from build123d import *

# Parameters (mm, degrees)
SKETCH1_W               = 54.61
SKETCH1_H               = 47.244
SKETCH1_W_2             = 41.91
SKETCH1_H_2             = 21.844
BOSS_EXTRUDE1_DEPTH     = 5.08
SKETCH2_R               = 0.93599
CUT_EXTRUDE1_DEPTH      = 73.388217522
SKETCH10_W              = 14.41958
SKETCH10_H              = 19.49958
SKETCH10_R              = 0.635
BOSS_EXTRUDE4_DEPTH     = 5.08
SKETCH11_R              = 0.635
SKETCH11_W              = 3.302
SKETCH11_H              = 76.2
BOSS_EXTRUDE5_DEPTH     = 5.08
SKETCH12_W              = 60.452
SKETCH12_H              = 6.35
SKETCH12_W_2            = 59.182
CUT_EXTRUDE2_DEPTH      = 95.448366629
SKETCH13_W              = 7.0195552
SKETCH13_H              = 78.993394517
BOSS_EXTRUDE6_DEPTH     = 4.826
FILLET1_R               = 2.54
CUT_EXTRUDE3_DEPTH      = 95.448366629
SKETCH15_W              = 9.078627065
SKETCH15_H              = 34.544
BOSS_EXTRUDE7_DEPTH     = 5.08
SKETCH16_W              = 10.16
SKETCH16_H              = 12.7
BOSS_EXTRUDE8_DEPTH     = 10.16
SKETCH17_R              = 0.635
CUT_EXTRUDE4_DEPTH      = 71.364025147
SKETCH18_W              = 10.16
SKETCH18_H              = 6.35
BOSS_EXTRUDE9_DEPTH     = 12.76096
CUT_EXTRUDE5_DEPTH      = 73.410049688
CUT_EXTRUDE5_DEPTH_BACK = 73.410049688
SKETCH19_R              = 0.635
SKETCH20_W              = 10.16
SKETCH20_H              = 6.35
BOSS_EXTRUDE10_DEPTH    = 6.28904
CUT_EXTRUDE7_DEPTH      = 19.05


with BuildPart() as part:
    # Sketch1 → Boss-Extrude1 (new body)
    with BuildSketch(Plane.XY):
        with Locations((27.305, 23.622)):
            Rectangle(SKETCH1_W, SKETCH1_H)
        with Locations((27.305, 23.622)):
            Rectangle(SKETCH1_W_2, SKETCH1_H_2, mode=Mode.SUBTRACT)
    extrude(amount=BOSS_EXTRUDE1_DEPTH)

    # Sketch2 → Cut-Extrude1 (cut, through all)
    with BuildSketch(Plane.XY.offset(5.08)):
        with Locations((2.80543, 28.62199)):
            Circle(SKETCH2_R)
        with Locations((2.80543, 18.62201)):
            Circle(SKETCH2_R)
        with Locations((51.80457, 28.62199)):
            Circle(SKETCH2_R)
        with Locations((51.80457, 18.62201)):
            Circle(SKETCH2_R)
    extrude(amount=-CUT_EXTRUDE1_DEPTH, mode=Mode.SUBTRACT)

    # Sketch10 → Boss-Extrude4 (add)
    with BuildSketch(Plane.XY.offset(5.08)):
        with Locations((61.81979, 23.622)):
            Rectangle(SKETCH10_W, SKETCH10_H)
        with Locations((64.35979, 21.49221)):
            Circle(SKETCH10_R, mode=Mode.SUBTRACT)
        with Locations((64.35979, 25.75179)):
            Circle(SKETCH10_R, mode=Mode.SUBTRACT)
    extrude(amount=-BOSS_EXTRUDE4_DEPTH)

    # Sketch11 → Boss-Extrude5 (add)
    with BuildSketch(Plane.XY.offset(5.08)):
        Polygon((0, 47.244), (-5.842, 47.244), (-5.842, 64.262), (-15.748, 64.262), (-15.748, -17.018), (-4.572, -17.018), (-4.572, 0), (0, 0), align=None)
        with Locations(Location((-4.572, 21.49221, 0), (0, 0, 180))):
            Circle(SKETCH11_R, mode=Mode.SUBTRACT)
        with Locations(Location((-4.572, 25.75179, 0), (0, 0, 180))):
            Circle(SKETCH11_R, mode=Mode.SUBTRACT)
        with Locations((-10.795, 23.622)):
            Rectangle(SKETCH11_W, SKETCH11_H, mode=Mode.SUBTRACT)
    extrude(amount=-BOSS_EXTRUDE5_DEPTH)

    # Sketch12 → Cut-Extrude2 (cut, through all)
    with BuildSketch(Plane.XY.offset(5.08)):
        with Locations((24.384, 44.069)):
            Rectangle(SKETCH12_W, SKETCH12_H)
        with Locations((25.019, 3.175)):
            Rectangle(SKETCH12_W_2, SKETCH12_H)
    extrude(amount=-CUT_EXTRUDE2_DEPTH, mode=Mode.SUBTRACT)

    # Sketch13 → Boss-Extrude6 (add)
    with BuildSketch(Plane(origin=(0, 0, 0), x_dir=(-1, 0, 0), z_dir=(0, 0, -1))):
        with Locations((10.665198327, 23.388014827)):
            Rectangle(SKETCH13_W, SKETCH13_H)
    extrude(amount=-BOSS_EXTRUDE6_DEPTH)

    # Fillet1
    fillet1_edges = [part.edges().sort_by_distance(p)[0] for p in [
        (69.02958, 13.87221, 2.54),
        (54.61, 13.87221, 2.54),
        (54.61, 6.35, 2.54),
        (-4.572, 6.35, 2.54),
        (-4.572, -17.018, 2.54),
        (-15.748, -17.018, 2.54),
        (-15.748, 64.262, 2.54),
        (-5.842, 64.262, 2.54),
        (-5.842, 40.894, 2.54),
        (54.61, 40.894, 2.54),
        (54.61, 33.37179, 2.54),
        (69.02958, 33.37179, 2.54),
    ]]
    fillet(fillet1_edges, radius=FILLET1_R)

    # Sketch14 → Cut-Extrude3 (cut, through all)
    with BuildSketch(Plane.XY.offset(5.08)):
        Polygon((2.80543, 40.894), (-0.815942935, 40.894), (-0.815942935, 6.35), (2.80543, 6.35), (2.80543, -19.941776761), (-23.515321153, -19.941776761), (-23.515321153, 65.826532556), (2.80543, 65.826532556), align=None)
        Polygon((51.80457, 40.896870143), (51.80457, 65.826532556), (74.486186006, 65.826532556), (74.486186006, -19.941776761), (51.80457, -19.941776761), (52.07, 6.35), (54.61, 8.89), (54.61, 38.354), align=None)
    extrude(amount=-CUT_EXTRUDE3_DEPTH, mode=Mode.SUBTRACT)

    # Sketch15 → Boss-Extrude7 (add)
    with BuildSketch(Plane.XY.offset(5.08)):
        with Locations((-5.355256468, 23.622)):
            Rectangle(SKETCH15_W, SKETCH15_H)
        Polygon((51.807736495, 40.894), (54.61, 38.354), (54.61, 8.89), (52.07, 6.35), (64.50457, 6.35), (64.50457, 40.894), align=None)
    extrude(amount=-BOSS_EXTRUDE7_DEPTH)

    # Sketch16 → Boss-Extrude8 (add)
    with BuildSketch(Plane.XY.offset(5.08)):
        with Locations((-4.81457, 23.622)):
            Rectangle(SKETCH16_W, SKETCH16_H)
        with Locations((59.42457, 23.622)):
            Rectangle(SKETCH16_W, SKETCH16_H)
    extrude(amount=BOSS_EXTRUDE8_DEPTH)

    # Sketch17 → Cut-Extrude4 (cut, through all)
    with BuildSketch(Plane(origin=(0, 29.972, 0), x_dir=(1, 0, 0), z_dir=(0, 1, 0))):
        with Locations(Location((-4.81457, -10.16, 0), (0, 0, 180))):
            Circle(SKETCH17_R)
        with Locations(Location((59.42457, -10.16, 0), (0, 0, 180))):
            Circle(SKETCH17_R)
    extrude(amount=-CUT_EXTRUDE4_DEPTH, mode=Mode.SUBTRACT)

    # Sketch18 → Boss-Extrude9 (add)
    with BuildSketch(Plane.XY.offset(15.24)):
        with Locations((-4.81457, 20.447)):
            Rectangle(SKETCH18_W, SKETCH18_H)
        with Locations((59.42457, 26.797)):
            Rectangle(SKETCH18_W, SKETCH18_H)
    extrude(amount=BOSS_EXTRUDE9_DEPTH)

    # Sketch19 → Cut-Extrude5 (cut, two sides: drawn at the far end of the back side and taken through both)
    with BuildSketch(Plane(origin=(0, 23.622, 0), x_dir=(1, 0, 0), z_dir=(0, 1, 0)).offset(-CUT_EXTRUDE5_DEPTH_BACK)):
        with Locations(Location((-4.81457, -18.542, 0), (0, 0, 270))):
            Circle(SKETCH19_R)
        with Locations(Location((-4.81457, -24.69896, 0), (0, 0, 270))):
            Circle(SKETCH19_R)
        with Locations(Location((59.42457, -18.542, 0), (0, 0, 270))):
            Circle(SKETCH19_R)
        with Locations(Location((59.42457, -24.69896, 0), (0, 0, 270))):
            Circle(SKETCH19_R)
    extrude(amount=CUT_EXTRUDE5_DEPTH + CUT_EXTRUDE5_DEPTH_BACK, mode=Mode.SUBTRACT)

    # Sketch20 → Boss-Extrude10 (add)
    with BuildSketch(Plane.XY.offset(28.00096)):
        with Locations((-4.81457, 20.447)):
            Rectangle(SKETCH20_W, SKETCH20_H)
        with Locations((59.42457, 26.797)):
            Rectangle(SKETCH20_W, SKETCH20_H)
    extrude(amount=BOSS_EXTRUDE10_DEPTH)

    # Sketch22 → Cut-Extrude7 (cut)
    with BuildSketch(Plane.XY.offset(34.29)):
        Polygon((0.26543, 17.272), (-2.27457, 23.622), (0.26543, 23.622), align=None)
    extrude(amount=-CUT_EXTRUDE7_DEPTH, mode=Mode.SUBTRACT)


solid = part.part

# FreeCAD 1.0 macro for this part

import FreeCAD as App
import Part
import Sketcher
from FreeCAD import Vector
Q = App.Units.Quantity


def edges_at(feature, points):
    """Names of the edges that pass closest to the given points."""
    edges = feature.Shape.Edges
    near = lambda p: min(range(len(edges)), key=lambda i: edges[i].distToShape(Part.Vertex(*p))[0])
    return sorted({f"Edge{near(p) + 1}" for p in points})

doc = App.newDocument("Part")
params = doc.addObject("Spreadsheet::Sheet", "Params")
for row, (alias, value) in enumerate([
    ("sketch1_width", "2.15 in"),
    ("sketch1_width2", "1.65 in"),
    ("sketch1_height", "1.86 in"),
    ("sketch1_height2", "0.86 in"),
    ("pad1_length", "0.2 in"),
    ("sketch3_diameter", "0.05 in"),
    ("pad2_length", "0.2 in"),
    ("sketch4_diameter", "0.05 in"),
    ("sketch4_height", "3 in"),
    ("sketch4_height2", "3.2 in"),
    ("sketch4_width", "0.23 in"),
    ("sketch4_width2", "0.39 in"),
    ("pad3_length", "0.2 in"),
    ("sketch5_width", "2.38 in"),
    ("sketch5_width2", "2.33 in"),
    ("sketch5_height", "0.25 in"),
    ("pad4_length", "0.19 in"),
    ("fillet_radius", "0.1 in"),
    ("sketch7_height", "1.36 in"),
    ("sketch7_height2", "1.16 in"),
    ("sketch8_height", "1.36 in"),
    ("sketch8_height2", "1.16 in"),
    ("pad5_length", "0.2 in"),
    ("sketch9_width", "0.4 in"),
    ("sketch9_height", "0.5 in"),
    ("pad6_length", "0.4 in"),
    ("sketch10_diameter", "0.05 in"),
    ("sketch11_width", "0.4 in"),
    ("sketch11_height", "0.25 in"),
    ("pad7_length", "0.5024 in"),
    ("sketch12_diameter", "0.05 in"),
    ("sketch13_width", "0.4 in"),
    ("sketch13_height", "0.25 in"),
    ("pad8_length", "0.2476 in"),
    ("sketch14_width", "0.1 in"),
    ("sketch14_height", "0.25 in"),
    ("pocket6_length", "0.75 in"),
], start=1):
    params.set(f"A{row}", alias)
    params.set(f"B{row}", "=" + value)
    params.setAlias(f"B{row}", alias)

body = doc.addObject("PartDesign::Body", "Body")

# Sketch on XY plane
sketch1 = body.newObject("Sketcher::SketchObject", "Sketch")
sketch1.AttachmentSupport = (doc.getObject("XY_Plane"), [""])
sketch1.MapMode = "FlatFace"
sketch1.addGeometry([
    Part.LineSegment(Vector(0, 47, 0), Vector(0, 0, 0)),  # 0
    Part.LineSegment(Vector(0, 0, 0), Vector(55, 0, 0)),  # 1
    Part.LineSegment(Vector(55, 0, 0), Vector(55, 47, 0)),  # 2
    Part.LineSegment(Vector(55, 47, 0), Vector(0, 47, 0)),  # 3
    Part.LineSegment(Vector(48, 13, 0), Vector(6, 13, 0)),  # 4
    Part.LineSegment(Vector(6, 13, 0), Vector(6, 35, 0)),  # 5
    Part.LineSegment(Vector(6, 35, 0), Vector(48, 35, 0)),  # 6
    Part.LineSegment(Vector(48, 35, 0), Vector(48, 13, 0)),  # 7
], False)
sketch1.addConstraint([
    Sketcher.Constraint("Coincident", 0, 2, 1, 1),
    Sketcher.Constraint("Coincident", 1, 2, 2, 1),
    Sketcher.Constraint("Coincident", 2, 2, 3, 1),
    Sketcher.Constraint("Coincident", 3, 2, 0, 1),
    Sketcher.Constraint("Coincident", 4, 2, 5, 1),
    Sketcher.Constraint("Coincident", 5, 2, 6, 1),
    Sketcher.Constraint("Coincident", 6, 2, 7, 1),
    Sketcher.Constraint("Coincident", 7, 2, 4, 1),
    Sketcher.Constraint("Vertical", 0),
    Sketcher.Constraint("Horizontal", 1),
    Sketcher.Constraint("Vertical", 2),
    Sketcher.Constraint("Horizontal", 3),
    Sketcher.Constraint("Horizontal", 4),
    Sketcher.Constraint("Vertical", 5),
    Sketcher.Constraint("Horizontal", 6),
    Sketcher.Constraint("Vertical", 7),
    Sketcher.Constraint("Coincident", 0, 2, -1, 1),
    Sketcher.Constraint("DistanceX", 1, 1, 1, 2, Q("2.15 in")),
    Sketcher.Constraint("DistanceX", 4, 2, 4, 1, Q("1.65 in")),
    Sketcher.Constraint("DistanceY", 0, 2, 0, 1, Q("1.86 in")),
    Sketcher.Constraint("DistanceY", 5, 1, 5, 2, Q("0.86 in")),
    Sketcher.Constraint("DistanceY", -1, 1, 4, 2, Q("0.5 in")),
    Sketcher.Constraint("DistanceX", -1, 1, 6, 2, Q("1.9 in")),
])
sketch1.setExpression("Constraints[17]", "Params.sketch1_width")
sketch1.setExpression("Constraints[18]", "Params.sketch1_width2")
sketch1.setExpression("Constraints[19]", "Params.sketch1_height")
sketch1.setExpression("Constraints[20]", "Params.sketch1_height2")
pad1 = body.newObject("PartDesign::Pad", "Pad")
pad1.Profile = sketch1
pad1.setExpression("Length", "Params.pad1_length")

# Sketch on XY plane
sketch2 = body.newObject("Sketcher::SketchObject", "Sketch001")
sketch2.AttachmentSupport = (doc.getObject("XY_Plane"), [""])
sketch2.MapMode = "FlatFace"
sketch2.AttachmentOffset = App.Placement(Vector(0, 0, 0.2 * 25.4), App.Rotation())
sketch2.addGeometry([
    Part.Circle(Vector(2.8, 28.6, 0), Vector(0, 0, 1), 0.9),
    Part.Circle(Vector(2.8, 18.6, 0), Vector(0, 0, 1), 0.9),
    Part.Circle(Vector(51.8, 28.6, 0), Vector(0, 0, 1), 0.9),
    Part.Circle(Vector(51.8, 18.6, 0), Vector(0, 0, 1), 0.9),
], False)
sketch2.addConstraint([
    Sketcher.Constraint("Equal", 0, 1),
    Sketcher.Constraint("Equal", 1, 2),
    Sketcher.Constraint("Equal", 2, 3),
    Sketcher.Constraint("Horizontal", 0, 3, 2, 3),
    Sketcher.Constraint("Horizontal", 1, 3, 3, 3),
    Sketcher.Constraint("Vertical", 0, 3, 1, 3),
    Sketcher.Constraint("Vertical", 2, 3, 3, 3),
    Sketcher.Constraint("Diameter", 0, Q("0.0737 in")),
    Sketcher.Constraint("DistanceY", 1, 3, 0, 3, Q("0.3937 in")),
    Sketcher.Constraint("DistanceX", 0, 3, 2, 3, Q("1.9291 in")),
    Sketcher.Constraint("DistanceX", -1, 1, 0, 3, Q("2.80543 mm")),
    Sketcher.Constraint("DistanceY", -1, 1, 0, 3, Q("28.62199 mm")),
])
pocket1 = body.newObject("PartDesign::Pocket", "Pocket")
pocket1.Profile = sketch2
pocket1.Type = "ThroughAll"

# Sketch on XY plane
sketch3 = body.newObject("Sketcher::SketchObject", "Sketch002")
sketch3.AttachmentSupport = (doc.getObject("XY_Plane"), [""])
sketch3.MapMode = "FlatFace"
sketch3.AttachmentOffset = App.Placement(Vector(0, 0, 0.2 * 25.4), App.Rotation())
sketch3.addGeometry([
    Part.LineSegment(Vector(54.6, 33.4, 0), Vector(54.6, 13.9, 0)),  # 0
    Part.LineSegment(Vector(54.6, 13.9, 0), Vector(69, 13.9, 0)),  # 1
    Part.LineSegment(Vector(69, 13.9, 0), Vector(69, 33.4, 0)),  # 2
    Part.LineSegment(Vector(69, 33.4, 0), Vector(54.6, 33.4, 0)),  # 3
    Part.Circle(Vector(64.4, 21.5, 0), Vector(0, 0, 1), 0.6),  # 4
    Part.Circle(Vector(64.4, 25.8, 0), Vector(0, 0, 1), 0.6),  # 5
], False)
sketch3.addConstraint([
    Sketcher.Constraint("Coincident", 0, 2, 1, 1),
    Sketcher.Constraint("Coincident", 1, 2, 2, 1),
    Sketcher.Constraint("Coincident", 2, 2, 3, 1),
    Sketcher.Constraint("Coincident", 3, 2, 0, 1),
    Sketcher.Constraint("Vertical", 0),
    Sketcher.Constraint("Horizontal", 1),
    Sketcher.Constraint("Vertical", 2),
    Sketcher.Constraint("Horizontal", 3),
    Sketcher.Constraint("Equal", 4, 5),
    Sketcher.Constraint("Vertical", 4, 3, 5, 3),
    Sketcher.Constraint("Diameter", 4, Q("0.05 in")),
    Sketcher.Constraint("DistanceY", 0, 2, 4, 3, Q("0.3 in")),
    Sketcher.Constraint("DistanceY", 5, 3, 2, 2, Q("0.3 in")),
    Sketcher.Constraint("DistanceX", -1, 1, 0, 2, Q("2.15 in")),
    Sketcher.Constraint("DistanceX", 1, 1, 1, 2, Q("0.5677 in")),
    Sketcher.Constraint("DistanceY", 0, 2, 0, 1, Q("0.7677 in")),
    Sketcher.Constraint("DistanceX", -1, 1, 4, 3, Q("64.35979 mm")),
    Sketcher.Constraint("DistanceY", -1, 1, 4, 3, Q("21.49221 mm")),
])
sketch3.setExpression("Constraints[10]", "Params.sketch3_diameter")
pad2 = body.newObject("PartDesign::Pad", "Pad001")
pad2.Profile = sketch3
pad2.setExpression("Length", "Params.pad2_length")
pad2.Reversed = True

# Sketch on XY plane
sketch4 = body.newObject("Sketcher::SketchObject", "Sketch003")
sketch4.AttachmentSupport = (doc.getObject("XY_Plane"), [""])
sketch4.MapMode = "FlatFace"
sketch4.AttachmentOffset = App.Placement(Vector(0, 0, 0.2 * 25.4), App.Rotation())
sketch4.addGeometry([
    Part.LineSegment(Vector(0, 47.2, 0), Vector(-5.8, 47.2, 0)),  # 0
    Part.LineSegment(Vector(-5.8, 47.2, 0), Vector(-5.8, 64.3, 0)),  # 1
    Part.LineSegment(Vector(-5.8, 64.3, 0), Vector(-15.7, 64.3, 0)),  # 2
    Part.LineSegment(Vector(-15.7, 64.3, 0), Vector(-15.7, -17, 0)),  # 3
    Part.LineSegment(Vector(-15.7, -17, 0), Vector(-4.6, -17, 0)),  # 4
    Part.LineSegment(Vector(-4.6, -17, 0), Vector(-4.6, 0, 0)),  # 5
    Part.LineSegment(Vector(-4.6, 0, 0), Vector(0, 0, 0)),  # 6
    Part.LineSegment(Vector(0, 0, 0), Vector(0, 47.2, 0)),  # 7
    Part.Circle(Vector(-4.6, 21.5, 0), Vector(0, 0, 1), 0.6),  # 8
    Part.LineSegment(Vector(-9.1, -14.5, 0), Vector(-12.4, -14.5, 0)),  # 9
    Part.LineSegment(Vector(-12.4, -14.5, 0), Vector(-12.4, 61.7, 0)),  # 10
    Part.LineSegment(Vector(-12.4, 61.7, 0), Vector(-9.1, 61.7, 0)),  # 11
    Part.LineSegment(Vector(-9.1, 61.7, 0), Vector(-9.1, -14.5, 0)),  # 12
    Part.Circle(Vector(-4.6, 25.8, 0), Vector(0, 0, 1), 0.6),  # 13
], False)
sketch4.addConstraint([
    Sketcher.Constraint("Coincident", 0, 2, 1, 1),
    Sketcher.Constraint("Coincident", 1, 2, 2, 1),
    Sketcher.Constraint("Coincident", 2, 2, 3, 1),
    Sketcher.Constraint("Coincident", 3, 2, 4, 1),
    Sketcher.Constraint("Coincident", 4, 2, 5, 1),
    Sketcher.Constraint("Coincident", 5, 2, 6, 1),
    Sketcher.Constraint("Coincident", 6, 2, 7, 1),
    Sketcher.Constraint("Coincident", 7, 2, 0, 1),
    Sketcher.Constraint("Coincident", 9, 2, 10, 1),
    Sketcher.Constraint("Coincident", 10, 2, 11, 1),
    Sketcher.Constraint("Coincident", 11, 2, 12, 1),
    Sketcher.Constraint("Coincident", 12, 2, 9, 1),
    Sketcher.Constraint("Horizontal", 0),
    Sketcher.Constraint("Vertical", 1),
    Sketcher.Constraint("Horizontal", 2),
    Sketcher.Constraint("Vertical", 3),
    Sketcher.Constraint("Horizontal", 4),
    Sketcher.Constraint("Vertical", 5),
    Sketcher.Constraint("Horizontal", 6),
    Sketcher.Constraint("Vertical", 7),
    Sketcher.Constraint("Horizontal", 9),
    Sketcher.Constraint("Vertical", 10),
    Sketcher.Constraint("Horizontal", 11),
    Sketcher.Constraint("Vertical", 12),
    Sketcher.Constraint("Coincident", 6, 2, -1, 1),
    Sketcher.Constraint("Equal", 8, 13),
    Sketcher.Constraint("Vertical", 8, 3, 13, 3),
    Sketcher.Constraint("Vertical", 13, 3, 4, 2),
    Sketcher.Constraint("Equal", 1, 5),
    Sketcher.Constraint("Diameter", 8, Q("0.05 in")),
    Sketcher.Constraint("DistanceY", 10, 1, 10, 2, Q("3 in")),
    Sketcher.Constraint("DistanceY", 3, 2, 3, 1, Q("3.2 in")),
    Sketcher.Constraint("DistanceX", 0, 2, 0, 1, Q("0.23 in")),
    Sketcher.Constraint("DistanceX", 2, 2, 2, 1, Q("0.39 in")),
    Sketcher.Constraint("DistanceX", 4, 1, 4, 2, Q("0.44 in")),
    Sketcher.Constraint("DistanceX", 9, 2, 9, 1, Q("0.13 in")),
    Sketcher.Constraint("DistanceY", 1, 1, 1, 2, Q("0.67 in")),
    Sketcher.Constraint("DistanceY", 3, 2, 9, 2, Q("0.1 in")),
    Sketcher.Constraint("DistanceX", 9, 2, -1, 1, Q("0.49 in")),
    Sketcher.Constraint("DistanceY", 8, 3, 13, 3, Q("0.1677 in")),
    Sketcher.Constraint("DistanceY", -1, 1, 8, 3, Q("21.49221 mm")),
])
sketch4.setExpression("Constraints[29]", "Params.sketch4_diameter")
sketch4.setExpression("Constraints[30]", "Params.sketch4_height")
sketch4.setExpression("Constraints[31]", "Params.sketch4_height2")
sketch4.setExpression("Constraints[32]", "Params.sketch4_width")
sketch4.setExpression("Constraints[33]", "Params.sketch4_width2")
pad3 = body.newObject("PartDesign::Pad", "Pad002")
pad3.Profile = sketch4
pad3.setExpression("Length", "Params.pad3_length")
pad3.Reversed = True

# Sketch on XY plane
sketch5 = body.newObject("Sketcher::SketchObject", "Sketch004")
sketch5.AttachmentSupport = (doc.getObject("XY_Plane"), [""])
sketch5.MapMode = "FlatFace"
sketch5.AttachmentOffset = App.Placement(Vector(0, 0, 0.2 * 25.4), App.Rotation())
sketch5.addGeometry([
    Part.LineSegment(Vector(-6, 47, 0), Vector(-6, 41, 0)),  # 0
    Part.LineSegment(Vector(-6, 41, 0), Vector(55, 41, 0)),  # 1
    Part.LineSegment(Vector(55, 41, 0), Vector(55, 47, 0)),  # 2
    Part.LineSegment(Vector(55, 47, 0), Vector(-6, 47, 0)),  # 3
    Part.LineSegment(Vector(-5, 6, 0), Vector(-5, 0, 0)),  # 4
    Part.LineSegment(Vector(-5, 0, 0), Vector(55, 0, 0)),  # 5
    Part.LineSegment(Vector(55, 0, 0), Vector(55, 6, 0)),  # 6
    Part.LineSegment(Vector(55, 6, 0), Vector(-5, 6, 0)),  # 7
], False)
sketch5.addConstraint([
    Sketcher.Constraint("Coincident", 0, 2, 1, 1),
    Sketcher.Constraint("Coincident", 1, 2, 2, 1),
    Sketcher.Constraint("Coincident", 2, 2, 3, 1),
    Sketcher.Constraint("Coincident", 3, 2, 0, 1),
    Sketcher.Constraint("Coincident", 4, 2, 5, 1),
    Sketcher.Constraint("Coincident", 5, 2, 6, 1),
    Sketcher.Constraint("Coincident", 6, 2, 7, 1),
    Sketcher.Constraint("Coincident", 7, 2, 4, 1),
    Sketcher.Constraint("Vertical", 0),
    Sketcher.Constraint("Horizontal", 1),
    Sketcher.Constraint("Vertical", 2),
    Sketcher.Constraint("Horizontal", 3),
    Sketcher.Constraint("Vertical", 4),
    Sketcher.Constraint("Horizontal", 5),
    Sketcher.Constraint("Vertical", 6),
    Sketcher.Constraint("Horizontal", 7),
    Sketcher.Constraint("PointOnObject", 4, 2, -1),
    Sketcher.Constraint("Vertical", 2, 2, 5, 2),
    Sketcher.Constraint("Equal", 2, 4),
    Sketcher.Constraint("DistanceX", 1, 1, 1, 2, Q("2.38 in")),
    Sketcher.Constraint("DistanceX", 5, 1, 5, 2, Q("2.33 in")),
    Sketcher.Constraint("DistanceY", 0, 2, 0, 1, Q("0.25 in")),
    Sketcher.Constraint("DistanceX", 0, 2, -1, 1, Q("0.23 in")),
    Sketcher.Constraint("DistanceY", -1, 1, 0, 2, Q("1.61 in")),
])
sketch5.setExpression("Constraints[19]", "Params.sketch5_width")
sketch5.setExpression("Constraints[20]", "Params.sketch5_width2")
sketch5.setExpression("Constraints[21]", "Params.sketch5_height")
pocket2 = body.newObject("PartDesign::Pocket", "Pocket001")
pocket2.Profile = sketch5
pocket2.Type = "ThroughAll"

# Sketch on XY plane
sketch6 = body.newObject("Sketcher::SketchObject", "Sketch005")
sketch6.AttachmentSupport = (doc.getObject("XY_Plane"), [""])
sketch6.MapMode = "FlatFace"
sketch6.addGeometry([
    Part.LineSegment(Vector(-7, 63, 0), Vector(-7, -16, 0)),
    Part.LineSegment(Vector(-7, -16, 0), Vector(-14, -16, 0)),
    Part.LineSegment(Vector(-14, -16, 0), Vector(-14, 63, 0)),
    Part.LineSegment(Vector(-14, 63, 0), Vector(-7, 63, 0)),
], False)
sketch6.addConstraint([
    Sketcher.Constraint("Coincident", 0, 2, 1, 1),
    Sketcher.Constraint("Coincident", 1, 2, 2, 1),
    Sketcher.Constraint("Coincident", 2, 2, 3, 1),
    Sketcher.Constraint("Coincident", 3, 2, 0, 1),
    Sketcher.Constraint("Vertical", 0),
    Sketcher.Constraint("Horizontal", 1),
    Sketcher.Constraint("Vertical", 2),
    Sketcher.Constraint("Horizontal", 3),
    Sketcher.Constraint("DistanceY", 0, 2, -1, 1, Q("0.6342001 in")),
    Sketcher.Constraint("DistanceX", 1, 2, 1, 1, Q("7.019555 mm")),
    Sketcher.Constraint("DistanceY", 0, 2, 0, 1, Q("78.993395 mm")),
    Sketcher.Constraint("DistanceX", 0, 2, -1, 1, Q("7.155421 mm")),
])
pad4 = body.newObject("PartDesign::Pad", "Pad003")
pad4.Profile = sketch6
pad4.setExpression("Length", "Params.pad4_length")
doc.recompute()

fillet = body.newObject("PartDesign::Fillet", "Fillet")
fillet.Base = (pad4, edges_at(pad4, [
    (69.03, 13.872, 2.54),
    (54.61, 13.872, 2.54),
    (54.61, 6.35, 2.54),
    (-4.572, 6.35, 2.54),
    (-4.572, -17.018, 2.54),
    (-15.748, -17.018, 2.54),
    (-15.748, 64.262, 2.54),
    (-5.842, 64.262, 2.54),
    (-5.842, 40.894, 2.54),
    (54.61, 40.894, 2.54),
    (54.61, 33.372, 2.54),
    (69.03, 33.372, 2.54),
]))
fillet.setExpression("Radius", "Params.fillet_radius")

# Sketch on XY plane
sketch7 = body.newObject("Sketcher::SketchObject", "Sketch006")
sketch7.AttachmentSupport = (doc.getObject("XY_Plane"), [""])
sketch7.MapMode = "FlatFace"
sketch7.AttachmentOffset = App.Placement(Vector(0, 0, 0.2 * 25.4), App.Rotation())
sketch7.addGeometry([
    Part.LineSegment(Vector(-0.8, 40.9, 0), Vector(2.8, 40.9, 0)),  # 0
    Part.LineSegment(Vector(2.8, 40.9, 0), Vector(2.8, 65.8, 0)),  # 1
    Part.LineSegment(Vector(2.8, 65.8, 0), Vector(-23.5, 65.8, 0)),  # 2
    Part.LineSegment(Vector(-23.5, 65.8, 0), Vector(-23.5, -19.9, 0)),  # 3
    Part.LineSegment(Vector(-23.5, -19.9, 0), Vector(2.8, -19.9, 0)),  # 4
    Part.LineSegment(Vector(2.8, -19.9, 0), Vector(2.8, 6.3, 0)),  # 5
    Part.LineSegment(Vector(2.8, 6.3, 0), Vector(-0.8, 6.3, 0)),  # 6
    Part.LineSegment(Vector(-0.8, 6.3, 0), Vector(-0.8, 40.9, 0)),  # 7
    Part.LineSegment(Vector(51.8, 65.8, 0), Vector(51.8, 40.9, 0)),  # 8
    Part.LineSegment(Vector(51.8, 40.9, 0), Vector(54.6, 38.4, 0)),  # 9
    Part.LineSegment(Vector(54.6, 38.4, 0), Vector(54.6, 8.9, 0)),  # 10
    Part.LineSegment(Vector(54.6, 8.9, 0), Vector(52.1, 6.3, 0)),  # 11
    Part.LineSegment(Vector(52.1, 6.3, 0), Vector(51.8, -19.9, 0)),  # 12
    Part.LineSegment(Vector(51.8, -19.9, 0), Vector(74.5, -19.9, 0)),  # 13
    Part.LineSegment(Vector(74.5, -19.9, 0), Vector(74.5, 65.8, 0)),  # 14
    Part.LineSegment(Vector(74.5, 65.8, 0), Vector(51.8, 65.8, 0)),  # 15
], False)
sketch7.addConstraint([
    Sketcher.Constraint("Coincident", 0, 2, 1, 1),
    Sketcher.Constraint("Coincident", 1, 2, 2, 1),
    Sketcher.Constraint("Coincident", 2, 2, 3, 1),
    Sketcher.Constraint("Coincident", 3, 2, 4, 1),
    Sketcher.Constraint("Coincident", 4, 2, 5, 1),
    Sketcher.Constraint("Coincident", 5, 2, 6, 1),
    Sketcher.Constraint("Coincident", 6, 2, 7, 1),
    Sketcher.Constraint("Coincident", 7, 2, 0, 1),
    Sketcher.Constraint("Coincident", 8, 2, 9, 1),
    Sketcher.Constraint("Coincident", 9, 2, 10, 1),
    Sketcher.Constraint("Coincident", 10, 2, 11, 1),
    Sketcher.Constraint("Coincident", 11, 2, 12, 1),
    Sketcher.Constraint("Coincident", 12, 2, 13, 1),
    Sketcher.Constraint("Coincident", 13, 2, 14, 1),
    Sketcher.Constraint("Coincident", 14, 2, 15, 1),
    Sketcher.Constraint("Coincident", 15, 2, 8, 1),
    Sketcher.Constraint("Horizontal", 0),
    Sketcher.Constraint("Vertical", 1),
    Sketcher.Constraint("Horizontal", 2),
    Sketcher.Constraint("Vertical", 3),
    Sketcher.Constraint("Horizontal", 4),
    Sketcher.Constraint("Vertical", 5),
    Sketcher.Constraint("Horizontal", 6),
    Sketcher.Constraint("Vertical", 7),
    Sketcher.Constraint("Vertical", 8),
    Sketcher.Constraint("Vertical", 10),
    Sketcher.Constraint("Horizontal", 13),
    Sketcher.Constraint("Vertical", 14),
    Sketcher.Constraint("Horizontal", 15),
    Sketcher.Constraint("Horizontal", 6, 2, 11, 2),
    Sketcher.Constraint("Horizontal", 4, 2, 12, 2),
    Sketcher.Constraint("Horizontal", 2, 2, 14, 2),
    Sketcher.Constraint("Vertical", 1, 2, 4, 2),
    Sketcher.Constraint("Vertical", 8, 2, 12, 2),
    Sketcher.Constraint("Angle", 11, Q("-135 deg")),
    Sketcher.Constraint("DistanceY", 7, 1, 7, 2, Q("1.36 in")),
    Sketcher.Constraint("DistanceY", 10, 2, 10, 1, Q("1.16 in")),
    Sketcher.Constraint("DistanceY", 9, 2, 0, 2, Q("0.1 in")),
    Sketcher.Constraint("DistanceY", -1, 1, 0, 2, Q("1.61 in")),
    Sketcher.Constraint("DistanceX", -1, 1, 9, 2, Q("2.15 in")),
    Sketcher.Constraint("DistanceX", 2, 2, -1, 1, Q("0.9258 in")),
    Sketcher.Constraint("DistanceX", 0, 2, 8, 2, Q("1.9291 in")),
    Sketcher.Constraint("DistanceX", 2, 2, 2, 1, Q("26.320751 mm")),
    Sketcher.Constraint("DistanceY", 3, 2, 3, 1, Q("85.768309 mm")),
    Sketcher.Constraint("DistanceX", 0, 1, 0, 2, Q("3.621373 mm")),
    Sketcher.Constraint("DistanceX", 13, 1, 13, 2, Q("22.681616 mm")),
    Sketcher.Constraint("DistanceY", 1, 1, 1, 2, Q("24.932533 mm")),
    Sketcher.Constraint("DistanceY", 8, 2, 8, 1, Q("24.929662 mm")),
])
sketch7.setExpression("Constraints[35]", "Params.sketch7_height")
sketch7.setExpression("Constraints[36]", "Params.sketch7_height2")
pocket3 = body.newObject("PartDesign::Pocket", "Pocket002")
pocket3.Profile = sketch7
pocket3.Type = "ThroughAll"

# Sketch on XY plane
sketch8 = body.newObject("Sketcher::SketchObject", "Sketch007")
sketch8.AttachmentSupport = (doc.getObject("XY_Plane"), [""])
sketch8.MapMode = "FlatFace"
sketch8.AttachmentOffset = App.Placement(Vector(0, 0, 0.2 * 25.4), App.Rotation())
sketch8.addGeometry([
    Part.LineSegment(Vector(-9.9, 40.9, 0), Vector(-9.9, 6.3, 0)),  # 0
    Part.LineSegment(Vector(-9.9, 6.3, 0), Vector(-0.8, 6.3, 0)),  # 1
    Part.LineSegment(Vector(-0.8, 6.3, 0), Vector(-0.8, 40.9, 0)),  # 2
    Part.LineSegment(Vector(-0.8, 40.9, 0), Vector(-9.9, 40.9, 0)),  # 3
    Part.LineSegment(Vector(51.8, 40.9, 0), Vector(54.6, 38.4, 0)),  # 4
    Part.LineSegment(Vector(54.6, 38.4, 0), Vector(54.6, 8.9, 0)),  # 5
    Part.LineSegment(Vector(54.6, 8.9, 0), Vector(52.1, 6.3, 0)),  # 6
    Part.LineSegment(Vector(52.1, 6.3, 0), Vector(64.5, 6.3, 0)),  # 7
    Part.LineSegment(Vector(64.5, 6.3, 0), Vector(64.5, 40.9, 0)),  # 8
    Part.LineSegment(Vector(64.5, 40.9, 0), Vector(51.8, 40.9, 0)),  # 9
], False)
sketch8.addConstraint([
    Sketcher.Constraint("Coincident", 0, 2, 1, 1),
    Sketcher.Constraint("Coincident", 1, 2, 2, 1),
    Sketcher.Constraint("Coincident", 2, 2, 3, 1),
    Sketcher.Constraint("Coincident", 3, 2, 0, 1),
    Sketcher.Constraint("Coincident", 4, 2, 5, 1),
    Sketcher.Constraint("Coincident", 5, 2, 6, 1),
    Sketcher.Constraint("Coincident", 6, 2, 7, 1),
    Sketcher.Constraint("Coincident", 7, 2, 8, 1),
    Sketcher.Constraint("Coincident", 8, 2, 9, 1),
    Sketcher.Constraint("Coincident", 9, 2, 4, 1),
    Sketcher.Constraint("Vertical", 0),
    Sketcher.Constraint("Horizontal", 1),
    Sketcher.Constraint("Vertical", 2),
    Sketcher.Constraint("Horizontal", 3),
    Sketcher.Constraint("Vertical", 5),
    Sketcher.Constraint("Horizontal", 7),
    Sketcher.Constraint("Vertical", 8),
    Sketcher.Constraint("Horizontal", 9),
    Sketcher.Constraint("Horizontal", 1, 2, 6, 2),
    Sketcher.Constraint("Horizontal", 3, 2, 8, 2),
    Sketcher.Constraint("Angle", 6, Q("-135 deg")),
    Sketcher.Constraint("DistanceY", 0, 2, 0, 1, Q("1.36 in")),
    Sketcher.Constraint("DistanceY", 5, 2, 5, 1, Q("1.16 in")),
    Sketcher.Constraint("DistanceY", 4, 2, 2, 2, Q("0.1 in")),
    Sketcher.Constraint("DistanceY", -1, 1, 0, 2, Q("0.25 in")),
    Sketcher.Constraint("DistanceX", -1, 1, 4, 2, Q("2.15 in")),
    Sketcher.Constraint("Distance", 4, Q("3.7821 mm")),
    Sketcher.Constraint("DistanceX", 7, 1, 7, 2, Q("12.43457 mm")),
    Sketcher.Constraint("DistanceX", 1, 1, 1, 2, Q("9.078627 mm")),
    Sketcher.Constraint("DistanceX", 0, 2, -1, 1, Q("9.89457 mm")),
])
sketch8.setExpression("Constraints[21]", "Params.sketch8_height")
sketch8.setExpression("Constraints[22]", "Params.sketch8_height2")
pad5 = body.newObject("PartDesign::Pad", "Pad004")
pad5.Profile = sketch8
pad5.setExpression("Length", "Params.pad5_length")
pad5.Reversed = True

# Sketch on XY plane
sketch9 = body.newObject("Sketcher::SketchObject", "Sketch008")
sketch9.AttachmentSupport = (doc.getObject("XY_Plane"), [""])
sketch9.MapMode = "FlatFace"
sketch9.AttachmentOffset = App.Placement(Vector(0, 0, 0.2 * 25.4), App.Rotation())
sketch9.addGeometry([
    Part.LineSegment(Vector(-10, 30, 0), Vector(-10, 17, 0)),  # 0
    Part.LineSegment(Vector(-10, 17, 0), Vector(0, 17, 0)),  # 1
    Part.LineSegment(Vector(0, 17, 0), Vector(0, 30, 0)),  # 2
    Part.LineSegment(Vector(0, 30, 0), Vector(-10, 30, 0)),  # 3
    Part.LineSegment(Vector(54, 30, 0), Vector(54, 17, 0)),  # 4
    Part.LineSegment(Vector(54, 17, 0), Vector(65, 17, 0)),  # 5
    Part.LineSegment(Vector(65, 17, 0), Vector(65, 30, 0)),  # 6
    Part.LineSegment(Vector(65, 30, 0), Vector(54, 30, 0)),  # 7
], False)
sketch9.addConstraint([
    Sketcher.Constraint("Coincident", 0, 2, 1, 1),
    Sketcher.Constraint("Coincident", 1, 2, 2, 1),
    Sketcher.Constraint("Coincident", 2, 2, 3, 1),
    Sketcher.Constraint("Coincident", 3, 2, 0, 1),
    Sketcher.Constraint("Coincident", 4, 2, 5, 1),
    Sketcher.Constraint("Coincident", 5, 2, 6, 1),
    Sketcher.Constraint("Coincident", 6, 2, 7, 1),
    Sketcher.Constraint("Coincident", 7, 2, 4, 1),
    Sketcher.Constraint("Vertical", 0),
    Sketcher.Constraint("Horizontal", 1),
    Sketcher.Constraint("Vertical", 2),
    Sketcher.Constraint("Horizontal", 3),
    Sketcher.Constraint("Vertical", 4),
    Sketcher.Constraint("Horizontal", 5),
    Sketcher.Constraint("Vertical", 6),
    Sketcher.Constraint("Horizontal", 7),
    Sketcher.Constraint("Horizontal", 1, 2, 4, 2),
    Sketcher.Constraint("Horizontal", 3, 2, 6, 2),
    Sketcher.Constraint("Equal", 3, 5),
    Sketcher.Constraint("DistanceX", 1, 1, 1, 2, Q("0.4 in")),
    Sketcher.Constraint("DistanceY", 0, 2, 0, 1, Q("0.5 in")),
    Sketcher.Constraint("DistanceY", -1, 1, 0, 2, Q("0.68 in")),
    Sketcher.Constraint("DistanceX", 1, 2, 4, 2, Q("2.1291 in")),
    Sketcher.Constraint("DistanceX", 0, 2, -1, 1, Q("9.89457 mm")),
])
sketch9.setExpression("Constraints[19]", "Params.sketch9_width")
sketch9.setExpression("Constraints[20]", "Params.sketch9_height")
pad6 = body.newObject("PartDesign::Pad", "Pad005")
pad6.Profile = sketch9
pad6.setExpression("Length", "Params.pad6_length")

# Sketch on XZ plane
sketch10 = body.newObject("Sketcher::SketchObject", "Sketch009")
sketch10.AttachmentSupport = (doc.getObject("XZ_Plane"), [""])
sketch10.MapMode = "FlatFace"
sketch10.AttachmentOffset = App.Placement(Vector(0, 0, -1.18 * 25.4), App.Rotation())
sketch10.addGeometry([
    Part.Circle(Vector(-4.8, 10.2, 0), Vector(0, 0, 1), 0.6),
    Part.Circle(Vector(59.4, 10.2, 0), Vector(0, 0, 1), 0.6),
], False)
sketch10.addConstraint([
    Sketcher.Constraint("Equal", 0, 1),
    Sketcher.Constraint("Horizontal", 0, 3, 1, 3),
    Sketcher.Constraint("Diameter", 0, Q("0.05 in")),
    Sketcher.Constraint("DistanceY", -1, 1, 0, 3, Q("0.4 in")),
    Sketcher.Constraint("DistanceX", 0, 3, 1, 3, Q("2.5291 in")),
    Sketcher.Constraint("DistanceX", 0, 3, -1, 1, Q("4.81457 mm")),
])
sketch10.setExpression("Constraints[2]", "Params.sketch10_diameter")
pocket4 = body.newObject("PartDesign::Pocket", "Pocket003")
pocket4.Profile = sketch10
pocket4.Type = "ThroughAll"
pocket4.Reversed = True

# Sketch on XY plane
sketch11 = body.newObject("Sketcher::SketchObject", "Sketch010")
sketch11.AttachmentSupport = (doc.getObject("XY_Plane"), [""])
sketch11.MapMode = "FlatFace"
sketch11.AttachmentOffset = App.Placement(Vector(0, 0, 0.6 * 25.4), App.Rotation())
sketch11.addGeometry([
    Part.LineSegment(Vector(-10, 24, 0), Vector(-10, 17, 0)),  # 0
    Part.LineSegment(Vector(-10, 17, 0), Vector(0, 17, 0)),  # 1
    Part.LineSegment(Vector(0, 17, 0), Vector(0, 24, 0)),  # 2
    Part.LineSegment(Vector(0, 24, 0), Vector(-10, 24, 0)),  # 3
    Part.LineSegment(Vector(54, 30, 0), Vector(54, 24, 0)),  # 4
    Part.LineSegment(Vector(54, 24, 0), Vector(65, 24, 0)),  # 5
    Part.LineSegment(Vector(65, 24, 0), Vector(65, 30, 0)),  # 6
    Part.LineSegment(Vector(65, 30, 0), Vector(54, 30, 0)),  # 7
], False)
sketch11.addConstraint([
    Sketcher.Constraint("Coincident", 0, 2, 1, 1),
    Sketcher.Constraint("Coincident", 1, 2, 2, 1),
    Sketcher.Constraint("Coincident", 2, 2, 3, 1),
    Sketcher.Constraint("Coincident", 3, 2, 0, 1),
    Sketcher.Constraint("Coincident", 4, 2, 5, 1),
    Sketcher.Constraint("Coincident", 5, 2, 6, 1),
    Sketcher.Constraint("Coincident", 6, 2, 7, 1),
    Sketcher.Constraint("Coincident", 7, 2, 4, 1),
    Sketcher.Constraint("Vertical", 0),
    Sketcher.Constraint("Horizontal", 1),
    Sketcher.Constraint("Vertical", 2),
    Sketcher.Constraint("Horizontal", 3),
    Sketcher.Constraint("Vertical", 4),
    Sketcher.Constraint("Horizontal", 5),
    Sketcher.Constraint("Vertical", 6),
    Sketcher.Constraint("Horizontal", 7),
    Sketcher.Constraint("Horizontal", 3, 2, 4, 2),
    Sketcher.Constraint("Equal", 3, 5),
    Sketcher.Constraint("Equal", 2, 4),
    Sketcher.Constraint("DistanceX", 1, 1, 1, 2, Q("0.4 in")),
    Sketcher.Constraint("DistanceY", 0, 2, 0, 1, Q("0.25 in")),
    Sketcher.Constraint("DistanceY", -1, 1, 0, 2, Q("0.68 in")),
    Sketcher.Constraint("DistanceX", 2, 2, 4, 2, Q("2.1291 in")),
    Sketcher.Constraint("DistanceX", 0, 2, -1, 1, Q("9.89457 mm")),
])
sketch11.setExpression("Constraints[19]", "Params.sketch11_width")
sketch11.setExpression("Constraints[20]", "Params.sketch11_height")
pad7 = body.newObject("PartDesign::Pad", "Pad006")
pad7.Profile = sketch11
pad7.setExpression("Length", "Params.pad7_length")

# Sketch on XZ plane
sketch12 = body.newObject("Sketcher::SketchObject", "Sketch011")
sketch12.AttachmentSupport = (doc.getObject("XZ_Plane"), [""])
sketch12.MapMode = "FlatFace"
sketch12.AttachmentOffset = App.Placement(Vector(0, 0, -0.93 * 25.4), App.Rotation())
sketch12.addGeometry([
    Part.Circle(Vector(-4.8, 18.5, 0), Vector(0, 0, 1), 0.6),
    Part.Circle(Vector(-4.8, 24.7, 0), Vector(0, 0, 1), 0.6),
    Part.Circle(Vector(59.4, 18.5, 0), Vector(0, 0, 1), 0.6),
    Part.Circle(Vector(59.4, 24.7, 0), Vector(0, 0, 1), 0.6),
], False)
sketch12.addConstraint([
    Sketcher.Constraint("Equal", 0, 1),
    Sketcher.Constraint("Equal", 1, 2),
    Sketcher.Constraint("Equal", 2, 3),
    Sketcher.Constraint("Horizontal", 0, 3, 2, 3),
    Sketcher.Constraint("Horizontal", 1, 3, 3, 3),
    Sketcher.Constraint("Vertical", 0, 3, 1, 3),
    Sketcher.Constraint("Vertical", 2, 3, 3, 3),
    Sketcher.Constraint("Diameter", 0, Q("0.05 in")),
    Sketcher.Constraint("DistanceY", -1, 1, 0, 3, Q("0.73 in")),
    Sketcher.Constraint("DistanceY", -1, 1, 1, 3, Q("0.9724 in")),
    Sketcher.Constraint("DistanceX", 0, 3, 2, 3, Q("2.5291 in")),
    Sketcher.Constraint("DistanceX", 0, 3, -1, 1, Q("4.81457 mm")),
])
sketch12.setExpression("Constraints[7]", "Params.sketch12_diameter")
pocket5 = body.newObject("PartDesign::Pocket", "Pocket004")
pocket5.Profile = sketch12
pocket5.Type = "ThroughAll"
pocket5.Midplane = True

# Sketch on XY plane
sketch13 = body.newObject("Sketcher::SketchObject", "Sketch012")
sketch13.AttachmentSupport = (doc.getObject("XY_Plane"), [""])
sketch13.MapMode = "FlatFace"
sketch13.AttachmentOffset = App.Placement(Vector(0, 0, 1.1024 * 25.4), App.Rotation())
sketch13.addGeometry([
    Part.LineSegment(Vector(-10, 24, 0), Vector(-10, 17, 0)),  # 0
    Part.LineSegment(Vector(-10, 17, 0), Vector(0, 17, 0)),  # 1
    Part.LineSegment(Vector(0, 17, 0), Vector(0, 24, 0)),  # 2
    Part.LineSegment(Vector(0, 24, 0), Vector(-10, 24, 0)),  # 3
    Part.LineSegment(Vector(54, 30, 0), Vector(54, 24, 0)),  # 4
    Part.LineSegment(Vector(54, 24, 0), Vector(65, 24, 0)),  # 5
    Part.LineSegment(Vector(65, 24, 0), Vector(65, 30, 0)),  # 6
    Part.LineSegment(Vector(65, 30, 0), Vector(54, 30, 0)),  # 7
], False)
sketch13.addConstraint([
    Sketcher.Constraint("Coincident", 0, 2, 1, 1),
    Sketcher.Constraint("Coincident", 1, 2, 2, 1),
    Sketcher.Constraint("Coincident", 2, 2, 3, 1),
    Sketcher.Constraint("Coincident", 3, 2, 0, 1),
    Sketcher.Constraint("Coincident", 4, 2, 5, 1),
    Sketcher.Constraint("Coincident", 5, 2, 6, 1),
    Sketcher.Constraint("Coincident", 6, 2, 7, 1),
    Sketcher.Constraint("Coincident", 7, 2, 4, 1),
    Sketcher.Constraint("Vertical", 0),
    Sketcher.Constraint("Horizontal", 1),
    Sketcher.Constraint("Vertical", 2),
    Sketcher.Constraint("Horizontal", 3),
    Sketcher.Constraint("Vertical", 4),
    Sketcher.Constraint("Horizontal", 5),
    Sketcher.Constraint("Vertical", 6),
    Sketcher.Constraint("Horizontal", 7),
    Sketcher.Constraint("Horizontal", 3, 2, 4, 2),
    Sketcher.Constraint("Equal", 3, 5),
    Sketcher.Constraint("Equal", 2, 4),
    Sketcher.Constraint("DistanceX", 1, 1, 1, 2, Q("0.4 in")),
    Sketcher.Constraint("DistanceY", 0, 2, 0, 1, Q("0.25 in")),
    Sketcher.Constraint("DistanceY", -1, 1, 0, 2, Q("0.68 in")),
    Sketcher.Constraint("DistanceX", 2, 2, 4, 2, Q("2.1291 in")),
    Sketcher.Constraint("DistanceX", 0, 2, -1, 1, Q("9.89457 mm")),
])
sketch13.setExpression("Constraints[19]", "Params.sketch13_width")
sketch13.setExpression("Constraints[20]", "Params.sketch13_height")
pad8 = body.newObject("PartDesign::Pad", "Pad007")
pad8.Profile = sketch13
pad8.setExpression("Length", "Params.pad8_length")

# Sketch on XY plane
sketch14 = body.newObject("Sketcher::SketchObject", "Sketch013")
sketch14.AttachmentSupport = (doc.getObject("XY_Plane"), [""])
sketch14.MapMode = "FlatFace"
sketch14.AttachmentOffset = App.Placement(Vector(0, 0, 1.35 * 25.4), App.Rotation())
sketch14.addGeometry([
    Part.LineSegment(Vector(-2.3, 23.6, 0), Vector(0.3, 17.3, 0)),
    Part.LineSegment(Vector(0.3, 17.3, 0), Vector(0.3, 23.6, 0)),
    Part.LineSegment(Vector(0.3, 23.6, 0), Vector(-2.3, 23.6, 0)),
], False)
sketch14.addConstraint([
    Sketcher.Constraint("Coincident", 0, 2, 1, 1),
    Sketcher.Constraint("Coincident", 1, 2, 2, 1),
    Sketcher.Constraint("Coincident", 2, 2, 0, 1),
    Sketcher.Constraint("Vertical", 1),
    Sketcher.Constraint("Horizontal", 2),
    Sketcher.Constraint("DistanceX", 2, 2, 2, 1, Q("0.1 in")),
    Sketcher.Constraint("DistanceY", 1, 1, 1, 2, Q("0.25 in")),
    Sketcher.Constraint("DistanceY", -1, 1, 0, 2, Q("0.68 in")),
    Sketcher.Constraint("DistanceX", -1, 1, 0, 2, Q("0.26543 mm")),
])
sketch14.setExpression("Constraints[5]", "Params.sketch14_width")
sketch14.setExpression("Constraints[6]", "Params.sketch14_height")
pocket6 = body.newObject("PartDesign::Pocket", "Pocket005")
pocket6.Profile = sketch14
pocket6.setExpression("Length", "Params.pocket6_length")

doc.recompute()
